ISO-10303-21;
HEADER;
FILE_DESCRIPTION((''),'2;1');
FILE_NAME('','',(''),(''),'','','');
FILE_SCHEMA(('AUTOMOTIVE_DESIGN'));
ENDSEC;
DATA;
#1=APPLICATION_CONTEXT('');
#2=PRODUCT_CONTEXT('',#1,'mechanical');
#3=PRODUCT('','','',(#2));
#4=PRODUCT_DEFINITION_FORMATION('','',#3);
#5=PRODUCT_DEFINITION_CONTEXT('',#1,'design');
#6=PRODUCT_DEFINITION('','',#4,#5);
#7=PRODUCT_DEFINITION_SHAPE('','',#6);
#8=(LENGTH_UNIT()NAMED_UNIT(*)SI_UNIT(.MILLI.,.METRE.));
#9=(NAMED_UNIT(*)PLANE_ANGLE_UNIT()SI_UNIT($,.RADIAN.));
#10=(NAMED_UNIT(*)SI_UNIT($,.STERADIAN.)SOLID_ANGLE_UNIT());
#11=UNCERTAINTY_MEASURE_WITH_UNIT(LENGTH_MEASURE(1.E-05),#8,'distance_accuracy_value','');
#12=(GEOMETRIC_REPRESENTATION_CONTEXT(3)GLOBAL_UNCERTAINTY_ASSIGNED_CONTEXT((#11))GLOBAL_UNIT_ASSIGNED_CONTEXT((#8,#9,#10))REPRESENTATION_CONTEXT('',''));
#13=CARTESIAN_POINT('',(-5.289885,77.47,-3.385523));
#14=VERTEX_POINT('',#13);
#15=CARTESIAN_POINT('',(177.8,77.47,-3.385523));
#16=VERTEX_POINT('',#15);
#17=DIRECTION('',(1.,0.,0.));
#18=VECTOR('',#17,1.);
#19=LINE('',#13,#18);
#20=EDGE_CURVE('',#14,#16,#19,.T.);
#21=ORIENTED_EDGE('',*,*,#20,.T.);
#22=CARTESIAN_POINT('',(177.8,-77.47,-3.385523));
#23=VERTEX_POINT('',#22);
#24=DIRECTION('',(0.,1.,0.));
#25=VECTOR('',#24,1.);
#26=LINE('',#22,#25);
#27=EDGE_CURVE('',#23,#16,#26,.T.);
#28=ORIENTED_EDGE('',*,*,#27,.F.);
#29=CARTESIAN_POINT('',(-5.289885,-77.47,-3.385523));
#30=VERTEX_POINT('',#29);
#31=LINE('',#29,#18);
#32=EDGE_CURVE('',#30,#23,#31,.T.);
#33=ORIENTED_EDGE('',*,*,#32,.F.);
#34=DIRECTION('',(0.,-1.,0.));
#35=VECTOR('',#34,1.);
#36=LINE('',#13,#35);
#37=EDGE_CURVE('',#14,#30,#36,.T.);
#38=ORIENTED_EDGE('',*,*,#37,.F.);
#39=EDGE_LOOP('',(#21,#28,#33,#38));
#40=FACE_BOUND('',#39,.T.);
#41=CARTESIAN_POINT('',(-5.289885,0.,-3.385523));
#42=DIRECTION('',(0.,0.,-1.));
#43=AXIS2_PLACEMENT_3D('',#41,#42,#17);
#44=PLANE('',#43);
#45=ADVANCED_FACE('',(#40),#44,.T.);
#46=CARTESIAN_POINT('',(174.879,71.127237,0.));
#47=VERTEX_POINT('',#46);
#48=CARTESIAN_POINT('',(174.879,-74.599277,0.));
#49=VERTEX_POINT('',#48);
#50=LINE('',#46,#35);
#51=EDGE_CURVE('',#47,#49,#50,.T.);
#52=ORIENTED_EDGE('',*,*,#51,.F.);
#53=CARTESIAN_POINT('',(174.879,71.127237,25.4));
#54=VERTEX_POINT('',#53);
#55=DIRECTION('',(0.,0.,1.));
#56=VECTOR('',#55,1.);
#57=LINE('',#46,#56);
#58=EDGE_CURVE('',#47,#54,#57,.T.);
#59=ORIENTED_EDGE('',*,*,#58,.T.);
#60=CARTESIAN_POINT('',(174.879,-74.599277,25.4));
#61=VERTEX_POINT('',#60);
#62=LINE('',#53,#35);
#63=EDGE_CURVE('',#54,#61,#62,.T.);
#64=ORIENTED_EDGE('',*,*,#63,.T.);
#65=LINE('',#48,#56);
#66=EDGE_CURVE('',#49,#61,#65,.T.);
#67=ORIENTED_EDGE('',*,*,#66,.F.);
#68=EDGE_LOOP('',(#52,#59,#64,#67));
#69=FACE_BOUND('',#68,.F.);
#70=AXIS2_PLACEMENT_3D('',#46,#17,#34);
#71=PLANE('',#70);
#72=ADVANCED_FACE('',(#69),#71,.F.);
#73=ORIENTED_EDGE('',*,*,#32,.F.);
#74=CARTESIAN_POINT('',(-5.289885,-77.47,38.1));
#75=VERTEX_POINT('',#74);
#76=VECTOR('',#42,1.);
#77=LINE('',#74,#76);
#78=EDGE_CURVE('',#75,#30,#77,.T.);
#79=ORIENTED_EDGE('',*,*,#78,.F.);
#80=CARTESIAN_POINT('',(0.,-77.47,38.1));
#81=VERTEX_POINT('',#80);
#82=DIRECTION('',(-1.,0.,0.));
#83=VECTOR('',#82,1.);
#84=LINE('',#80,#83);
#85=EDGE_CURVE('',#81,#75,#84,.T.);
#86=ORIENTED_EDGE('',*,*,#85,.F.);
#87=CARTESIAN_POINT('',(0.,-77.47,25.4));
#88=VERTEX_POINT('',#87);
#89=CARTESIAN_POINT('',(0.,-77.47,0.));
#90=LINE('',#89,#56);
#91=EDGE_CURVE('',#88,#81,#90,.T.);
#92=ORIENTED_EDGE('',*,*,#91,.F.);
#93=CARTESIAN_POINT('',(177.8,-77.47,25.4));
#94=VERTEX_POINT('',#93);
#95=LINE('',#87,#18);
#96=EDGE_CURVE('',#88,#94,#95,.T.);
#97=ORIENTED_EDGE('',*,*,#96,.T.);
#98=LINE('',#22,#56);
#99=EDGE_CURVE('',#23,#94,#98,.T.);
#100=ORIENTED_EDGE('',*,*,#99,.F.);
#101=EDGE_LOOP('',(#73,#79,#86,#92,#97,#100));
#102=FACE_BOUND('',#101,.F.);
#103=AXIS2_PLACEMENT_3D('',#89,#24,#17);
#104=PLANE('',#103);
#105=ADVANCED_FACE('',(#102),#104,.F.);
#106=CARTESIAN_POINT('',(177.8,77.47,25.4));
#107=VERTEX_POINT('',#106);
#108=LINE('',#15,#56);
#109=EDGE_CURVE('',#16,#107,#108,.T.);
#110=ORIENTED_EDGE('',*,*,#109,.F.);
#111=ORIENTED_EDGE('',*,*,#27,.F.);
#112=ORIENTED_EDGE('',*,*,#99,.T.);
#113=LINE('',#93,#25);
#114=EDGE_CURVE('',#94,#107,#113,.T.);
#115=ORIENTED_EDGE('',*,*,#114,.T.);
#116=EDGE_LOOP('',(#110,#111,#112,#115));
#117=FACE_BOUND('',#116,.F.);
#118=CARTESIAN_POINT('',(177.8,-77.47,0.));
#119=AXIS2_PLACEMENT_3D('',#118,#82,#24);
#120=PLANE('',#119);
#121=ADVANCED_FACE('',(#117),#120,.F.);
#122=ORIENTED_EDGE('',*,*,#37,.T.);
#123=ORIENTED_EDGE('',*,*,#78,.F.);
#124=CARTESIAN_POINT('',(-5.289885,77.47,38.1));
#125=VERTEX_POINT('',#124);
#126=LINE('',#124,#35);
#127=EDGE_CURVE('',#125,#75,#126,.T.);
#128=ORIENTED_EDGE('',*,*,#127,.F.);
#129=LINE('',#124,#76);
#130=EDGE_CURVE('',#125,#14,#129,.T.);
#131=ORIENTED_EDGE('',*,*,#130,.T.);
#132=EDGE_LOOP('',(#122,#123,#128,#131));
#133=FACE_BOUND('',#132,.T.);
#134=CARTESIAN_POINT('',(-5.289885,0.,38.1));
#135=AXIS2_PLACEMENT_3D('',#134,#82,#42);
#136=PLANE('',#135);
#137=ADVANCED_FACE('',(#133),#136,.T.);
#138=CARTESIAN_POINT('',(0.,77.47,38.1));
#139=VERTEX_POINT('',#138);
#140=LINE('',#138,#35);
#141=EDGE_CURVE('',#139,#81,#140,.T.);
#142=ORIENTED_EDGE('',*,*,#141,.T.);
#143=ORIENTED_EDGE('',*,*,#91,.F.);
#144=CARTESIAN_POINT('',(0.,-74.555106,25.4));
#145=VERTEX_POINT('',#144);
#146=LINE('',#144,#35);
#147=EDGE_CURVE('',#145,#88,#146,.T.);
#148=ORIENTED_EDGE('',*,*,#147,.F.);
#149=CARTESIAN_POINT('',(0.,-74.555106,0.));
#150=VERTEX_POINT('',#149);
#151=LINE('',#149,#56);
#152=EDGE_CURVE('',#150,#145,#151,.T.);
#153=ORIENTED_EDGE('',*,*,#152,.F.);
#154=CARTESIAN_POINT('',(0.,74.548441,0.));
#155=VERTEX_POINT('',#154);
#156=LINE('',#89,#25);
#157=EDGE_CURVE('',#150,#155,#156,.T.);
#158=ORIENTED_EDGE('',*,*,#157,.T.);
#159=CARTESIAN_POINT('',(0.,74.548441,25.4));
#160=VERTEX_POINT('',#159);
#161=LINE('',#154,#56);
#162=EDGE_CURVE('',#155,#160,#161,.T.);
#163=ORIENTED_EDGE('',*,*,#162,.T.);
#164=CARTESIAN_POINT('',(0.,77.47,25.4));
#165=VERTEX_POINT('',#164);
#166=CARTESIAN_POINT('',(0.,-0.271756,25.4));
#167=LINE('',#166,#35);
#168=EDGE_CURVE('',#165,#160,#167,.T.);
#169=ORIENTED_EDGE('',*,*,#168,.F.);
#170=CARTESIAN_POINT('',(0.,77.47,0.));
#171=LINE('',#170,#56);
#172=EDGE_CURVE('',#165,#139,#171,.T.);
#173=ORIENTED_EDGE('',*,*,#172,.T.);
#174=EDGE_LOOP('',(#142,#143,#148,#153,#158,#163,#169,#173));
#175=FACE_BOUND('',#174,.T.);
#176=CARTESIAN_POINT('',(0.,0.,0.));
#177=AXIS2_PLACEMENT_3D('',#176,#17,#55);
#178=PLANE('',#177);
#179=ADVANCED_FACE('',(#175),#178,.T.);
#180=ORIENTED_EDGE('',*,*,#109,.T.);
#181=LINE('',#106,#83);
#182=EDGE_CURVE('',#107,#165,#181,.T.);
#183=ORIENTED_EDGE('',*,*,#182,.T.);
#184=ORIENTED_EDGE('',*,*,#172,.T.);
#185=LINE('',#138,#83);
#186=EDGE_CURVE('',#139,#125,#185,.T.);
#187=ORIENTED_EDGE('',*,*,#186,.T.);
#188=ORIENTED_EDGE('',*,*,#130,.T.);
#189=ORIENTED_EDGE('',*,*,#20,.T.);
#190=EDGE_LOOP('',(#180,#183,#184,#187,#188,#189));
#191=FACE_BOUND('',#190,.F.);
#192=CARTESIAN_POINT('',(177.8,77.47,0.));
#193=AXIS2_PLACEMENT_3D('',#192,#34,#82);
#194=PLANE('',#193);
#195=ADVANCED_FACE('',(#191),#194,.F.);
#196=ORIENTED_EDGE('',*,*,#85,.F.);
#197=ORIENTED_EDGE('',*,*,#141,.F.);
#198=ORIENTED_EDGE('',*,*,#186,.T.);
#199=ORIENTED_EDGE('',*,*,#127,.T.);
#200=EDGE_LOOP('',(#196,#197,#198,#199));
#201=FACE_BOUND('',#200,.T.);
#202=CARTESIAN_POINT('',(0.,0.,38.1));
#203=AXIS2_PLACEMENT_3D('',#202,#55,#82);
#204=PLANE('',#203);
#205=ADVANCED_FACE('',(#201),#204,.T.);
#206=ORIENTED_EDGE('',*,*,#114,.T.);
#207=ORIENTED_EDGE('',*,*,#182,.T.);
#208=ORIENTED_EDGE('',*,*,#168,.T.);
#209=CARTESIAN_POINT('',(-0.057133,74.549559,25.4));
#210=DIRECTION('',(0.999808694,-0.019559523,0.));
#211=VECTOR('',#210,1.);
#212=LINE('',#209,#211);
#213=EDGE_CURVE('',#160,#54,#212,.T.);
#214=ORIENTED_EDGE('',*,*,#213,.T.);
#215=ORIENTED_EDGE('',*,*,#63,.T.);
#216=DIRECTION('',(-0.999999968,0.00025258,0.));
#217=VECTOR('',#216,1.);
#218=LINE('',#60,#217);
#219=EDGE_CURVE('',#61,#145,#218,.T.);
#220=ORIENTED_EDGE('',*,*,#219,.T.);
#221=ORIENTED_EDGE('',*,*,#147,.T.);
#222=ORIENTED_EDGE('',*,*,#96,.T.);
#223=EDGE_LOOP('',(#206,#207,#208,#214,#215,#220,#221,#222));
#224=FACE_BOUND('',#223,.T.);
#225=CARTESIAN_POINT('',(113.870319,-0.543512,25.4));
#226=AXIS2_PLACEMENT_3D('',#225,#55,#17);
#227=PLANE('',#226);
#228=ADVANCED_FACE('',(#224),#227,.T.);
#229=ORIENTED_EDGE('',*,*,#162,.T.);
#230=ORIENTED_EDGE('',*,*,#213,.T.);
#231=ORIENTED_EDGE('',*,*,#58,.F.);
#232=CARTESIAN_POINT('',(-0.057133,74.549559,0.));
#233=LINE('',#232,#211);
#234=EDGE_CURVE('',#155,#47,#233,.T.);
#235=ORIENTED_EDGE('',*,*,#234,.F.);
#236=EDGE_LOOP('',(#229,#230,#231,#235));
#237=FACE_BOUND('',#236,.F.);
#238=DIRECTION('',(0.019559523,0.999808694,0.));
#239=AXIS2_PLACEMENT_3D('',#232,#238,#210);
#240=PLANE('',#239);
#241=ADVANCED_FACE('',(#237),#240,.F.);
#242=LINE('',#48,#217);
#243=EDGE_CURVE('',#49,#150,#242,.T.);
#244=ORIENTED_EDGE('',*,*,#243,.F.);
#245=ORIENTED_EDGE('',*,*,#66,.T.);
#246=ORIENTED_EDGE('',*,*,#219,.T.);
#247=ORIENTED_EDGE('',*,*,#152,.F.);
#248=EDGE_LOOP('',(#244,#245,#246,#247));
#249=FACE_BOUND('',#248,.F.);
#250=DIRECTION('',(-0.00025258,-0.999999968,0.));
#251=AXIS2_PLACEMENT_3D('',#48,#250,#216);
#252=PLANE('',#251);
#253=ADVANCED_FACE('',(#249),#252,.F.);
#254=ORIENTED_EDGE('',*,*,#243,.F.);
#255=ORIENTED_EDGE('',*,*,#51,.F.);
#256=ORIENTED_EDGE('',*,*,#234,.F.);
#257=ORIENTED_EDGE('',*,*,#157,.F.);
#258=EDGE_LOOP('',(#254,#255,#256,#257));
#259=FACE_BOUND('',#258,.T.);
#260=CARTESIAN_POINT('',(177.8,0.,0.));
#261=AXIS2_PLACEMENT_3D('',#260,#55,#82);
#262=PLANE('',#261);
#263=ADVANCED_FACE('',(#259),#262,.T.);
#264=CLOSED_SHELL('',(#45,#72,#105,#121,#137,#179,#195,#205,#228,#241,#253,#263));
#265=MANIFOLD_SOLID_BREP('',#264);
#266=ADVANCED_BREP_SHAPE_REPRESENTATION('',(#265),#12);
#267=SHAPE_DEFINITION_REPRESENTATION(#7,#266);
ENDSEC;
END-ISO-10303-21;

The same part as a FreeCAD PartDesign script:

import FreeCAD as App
import Part
import Sketcher
Q = App.Units.Quantity

doc = App.newDocument("Part")
body = doc.addObject("PartDesign::Body", "Body")

# Sketch on XZ plane
sketch1 = body.newObject("Sketcher::SketchObject", "Sketch")
sketch1.AttachmentSupport = (doc.getObject("XZ_Plane"), [""])
sketch1.MapMode = "FlatFace"
sketch1.addGeometry(Part.LineSegment(App.Vector(0, 0, 0), App.Vector(0, 38.1, 0)), False)
sketch1.addGeometry(Part.LineSegment(App.Vector(0, 38.1, 0), App.Vector(-5.3, 38.1, 0)), False)
sketch1.addGeometry(Part.LineSegment(App.Vector(-5.3, 38.1, 0), App.Vector(-5.3, -3.4, 0)), False)
sketch1.addGeometry(Part.LineSegment(App.Vector(-5.3, -3.4, 0), App.Vector(177.8, -3.4, 0)), False)
sketch1.addGeometry(Part.LineSegment(App.Vector(177.8, -3.4, 0), App.Vector(177.8, 0, 0)), False)
sketch1.addGeometry(Part.LineSegment(App.Vector(177.8, 0, 0), App.Vector(0, 0, 0)), False)
sketch1.addConstraint(Sketcher.Constraint("Coincident", 0, 2, 1, 1))
sketch1.addConstraint(Sketcher.Constraint("Coincident", 1, 2, 2, 1))
sketch1.addConstraint(Sketcher.Constraint("Coincident", 2, 2, 3, 1))
sketch1.addConstraint(Sketcher.Constraint("Coincident", 3, 2, 4, 1))
sketch1.addConstraint(Sketcher.Constraint("Coincident", 4, 2, 5, 1))
sketch1.addConstraint(Sketcher.Constraint("Coincident", 5, 2, 0, 1))
sketch1.addConstraint(Sketcher.Constraint("Vertical", 0))
sketch1.addConstraint(Sketcher.Constraint("Horizontal", 1))
sketch1.addConstraint(Sketcher.Constraint("Vertical", 2))
sketch1.addConstraint(Sketcher.Constraint("Horizontal", 3))
sketch1.addConstraint(Sketcher.Constraint("Vertical", 4))
sketch1.addConstraint(Sketcher.Constraint("Horizontal", 5))
sketch1.addConstraint(Sketcher.Constraint("Coincident", 5, 2, -1, 1))
sketch1.addConstraint(Sketcher.Constraint("DistanceX", 5, 2, 5, 1, Q("7 in")))
sketch1.addConstraint(Sketcher.Constraint("DistanceY", 0, 1, 0, 2, Q("1.5 in")))
sketch1.addConstraint(Sketcher.Constraint("DistanceX", 1, 2, 1, 1, Q("5.289885 mm")))
sketch1.addConstraint(Sketcher.Constraint("DistanceY", 2, 2, 2, 1, Q("41.485523 mm")))
pad1 = body.newObject("PartDesign::Pad", "Pad")
pad1.Profile = sketch1
pad1.Length = Q("6.1 in")
pad1.Midplane = True

# Sketch on XY plane
sketch2 = body.newObject("Sketcher::SketchObject", "Sketch001")
sketch2.AttachmentSupport = (doc.getObject("XY_Plane"), [""])
sketch2.MapMode = "FlatFace"
sketch2.addGeometry(Part.LineSegment(App.Vector(0, -74.6, 0), App.Vector(0, -77.5, 0)), False)
sketch2.addGeometry(Part.LineSegment(App.Vector(0, -77.5, 0), App.Vector(177.8, -77.5, 0)), False)
sketch2.addGeometry(Part.LineSegment(App.Vector(177.8, -77.5, 0), App.Vector(177.8, 77.5, 0)), False)
sketch2.addGeometry(Part.LineSegment(App.Vector(177.8, 77.5, 0), App.Vector(0, 77.5, 0)), False)
sketch2.addGeometry(Part.LineSegment(App.Vector(0, 77.5, 0), App.Vector(-0.1, 74.5, 0)), False)
sketch2.addGeometry(Part.LineSegment(App.Vector(-0.1, 74.5, 0), App.Vector(174.9, 71.1, 0)), False)
sketch2.addGeometry(Part.LineSegment(App.Vector(174.9, 71.1, 0), App.Vector(174.9, -74.6, 0)), False)
sketch2.addGeometry(Part.LineSegment(App.Vector(174.9, -74.6, 0), App.Vector(0, -74.6, 0)), False)
sketch2.addConstraint(Sketcher.Constraint("Coincident", 0, 2, 1, 1))
sketch2.addConstraint(Sketcher.Constraint("Coincident", 1, 2, 2, 1))
sketch2.addConstraint(Sketcher.Constraint("Coincident", 2, 2, 3, 1))
sketch2.addConstraint(Sketcher.Constraint("Coincident", 3, 2, 4, 1))
sketch2.addConstraint(Sketcher.Constraint("Coincident", 4, 2, 5, 1))
sketch2.addConstraint(Sketcher.Constraint("Coincident", 5, 2, 6, 1))
sketch2.addConstraint(Sketcher.Constraint("Coincident", 6, 2, 7, 1))
sketch2.addConstraint(Sketcher.Constraint("Coincident", 7, 2, 0, 1))
sketch2.addConstraint(Sketcher.Constraint("Vertical", 0))
sketch2.addConstraint(Sketcher.Constraint("Horizontal", 1))
sketch2.addConstraint(Sketcher.Constraint("Vertical", 2))
sketch2.addConstraint(Sketcher.Constraint("Horizontal", 3))
sketch2.addConstraint(Sketcher.Constraint("Vertical", 6))
sketch2.addConstraint(Sketcher.Constraint("Symmetric", 0, 2, 3, 2, -1, 1))
sketch2.addConstraint(Sketcher.Constraint("PointOnObject", 0, 2, -2))
sketch2.addConstraint(Sketcher.Constraint("Perpendicular", 4, 5))
sketch2.addConstraint(Sketcher.Constraint("DistanceX", 1, 1, 1, 2, Q("7 in")))
sketch2.addConstraint(Sketcher.Constraint("DistanceY", 2, 1, 2, 2, Q("6.1 in")))
sketch2.addConstraint(Sketcher.Constraint("Distance", 4, Q("0.115 in")))
sketch2.addConstraint(Sketcher.Constraint("DistanceX", -1, 1, 5, 2, Q("6.885 in")))
sketch2.addConstraint(Sketcher.Constraint("DistanceY", 0, 2, 0, 1, Q("2.914894 mm")))
sketch2.addConstraint(Sketcher.Constraint("DistanceY", 6, 2, 6, 1, Q("145.726514 mm")))
sketch2.addConstraint(Sketcher.Constraint("DistanceY", 6, 2, 7, 2, Q("0.044171 mm")))
pad2 = body.newObject("PartDesign::Pad", "Pad001")
pad2.Profile = sketch2
pad2.Length = Q("1 in")

doc.recompute()
